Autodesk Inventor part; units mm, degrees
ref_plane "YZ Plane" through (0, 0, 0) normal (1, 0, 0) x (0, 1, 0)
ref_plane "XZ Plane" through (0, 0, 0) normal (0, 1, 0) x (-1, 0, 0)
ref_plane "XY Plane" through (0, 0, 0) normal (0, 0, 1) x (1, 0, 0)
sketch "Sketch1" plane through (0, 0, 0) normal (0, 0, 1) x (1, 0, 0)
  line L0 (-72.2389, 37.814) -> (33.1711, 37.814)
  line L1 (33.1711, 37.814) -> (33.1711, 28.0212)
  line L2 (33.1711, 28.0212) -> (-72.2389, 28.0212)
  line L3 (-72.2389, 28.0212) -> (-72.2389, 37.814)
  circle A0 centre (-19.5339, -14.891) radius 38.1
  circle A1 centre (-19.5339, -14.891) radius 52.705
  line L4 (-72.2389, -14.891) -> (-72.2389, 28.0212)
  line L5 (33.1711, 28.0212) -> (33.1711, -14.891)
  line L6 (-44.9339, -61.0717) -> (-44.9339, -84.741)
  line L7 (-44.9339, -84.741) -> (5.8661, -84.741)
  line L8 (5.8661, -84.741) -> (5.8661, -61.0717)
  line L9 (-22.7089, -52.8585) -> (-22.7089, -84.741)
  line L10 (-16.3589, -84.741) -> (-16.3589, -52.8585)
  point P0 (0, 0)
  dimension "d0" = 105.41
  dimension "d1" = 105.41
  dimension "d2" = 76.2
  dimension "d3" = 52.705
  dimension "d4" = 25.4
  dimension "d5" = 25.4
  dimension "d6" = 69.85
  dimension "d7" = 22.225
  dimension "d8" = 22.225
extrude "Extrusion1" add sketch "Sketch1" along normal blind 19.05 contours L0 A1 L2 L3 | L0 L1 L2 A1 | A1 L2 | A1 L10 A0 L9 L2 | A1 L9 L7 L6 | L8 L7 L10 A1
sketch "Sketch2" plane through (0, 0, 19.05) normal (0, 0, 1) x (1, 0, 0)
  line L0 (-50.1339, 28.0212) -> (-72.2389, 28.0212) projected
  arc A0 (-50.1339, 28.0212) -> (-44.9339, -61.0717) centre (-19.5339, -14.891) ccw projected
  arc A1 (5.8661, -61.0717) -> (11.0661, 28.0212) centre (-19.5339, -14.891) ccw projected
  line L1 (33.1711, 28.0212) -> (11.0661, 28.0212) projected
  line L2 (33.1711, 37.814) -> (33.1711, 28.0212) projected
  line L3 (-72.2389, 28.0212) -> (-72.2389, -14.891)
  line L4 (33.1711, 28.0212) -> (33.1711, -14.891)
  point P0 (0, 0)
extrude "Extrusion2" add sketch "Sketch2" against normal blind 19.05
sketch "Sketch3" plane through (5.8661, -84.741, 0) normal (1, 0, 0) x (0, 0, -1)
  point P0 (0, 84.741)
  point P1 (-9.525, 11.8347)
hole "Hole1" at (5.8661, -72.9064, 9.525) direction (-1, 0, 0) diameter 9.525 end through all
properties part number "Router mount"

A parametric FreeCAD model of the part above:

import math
import FreeCAD as App
import Part
import Sketcher
from FreeCAD import Vector
Q = App.Units.Quantity

doc = App.newDocument("Part")
params = doc.addObject("Spreadsheet::Sheet", "Params")
for row, (alias, value) in enumerate([
    ("sketch1_radius", "1.5 in"),
    ("sketch1_radius2", "2.075 in"),
    ("sketch1_width", "1 in"),
    ("sketch1_width2", "4.15 in"),
    ("sketch1_width3", "0.875 in"),
    ("pad1_length", "0.75 in"),
    ("sketch2_radius", "2.075 in"),
    ("pad2_length", "0.75 in"),
    ("sketch3_diameter", "0.375 in"),
    ("hole_diameter", "0.375 in"),
], start=1):
    params.set(f"A{row}", alias)
    params.set(f"B{row}", "=" + value)
    params.setAlias(f"B{row}", alias)

body = doc.addObject("PartDesign::Body", "Body")

sketch1 = body.newObject("Sketcher::SketchObject", "Sketch")
sketch1.AttachmentSupport = (doc.getObject("XY_Plane"), [""])
sketch1.MapMode = "FlatFace"
sketch1.addGeometry([
    Part.LineSegment(Vector(-72.2389, 37.814, 0), Vector(-72.2389, 28.0212, 0)),
    Part.LineSegment(Vector(-72.2389, 28.0212, 0), Vector(-50.133902, 28.0212, 0)),
    Part.ArcOfCircle(Part.Circle(Vector(-19.5339, -14.891, 0), Vector(0, 0, 1), 52.705), math.radians(125.492059), math.radians(241.18862)),
    Part.LineSegment(Vector(-44.9339, -61.0717, 0), Vector(-44.9339, -84.741, 0)),
    Part.LineSegment(Vector(-44.9339, -84.741, 0), Vector(-22.7089, -84.741, 0)),
    Part.LineSegment(Vector(-22.7089, -84.741, 0), Vector(-22.7089, -52.8585, 0)),
    Part.ArcOfCircle(Part.Circle(Vector(-19.5339, -14.891, 0), Vector(0, 0, 1), 38.1), math.radians(-85.219811), math.radians(265.219811)),
    Part.LineSegment(Vector(-16.3589, -52.8585, 0), Vector(-16.3589, -84.741, 0)),
    Part.LineSegment(Vector(-16.3589, -84.741, 0), Vector(5.8661, -84.741, 0)),
    Part.LineSegment(Vector(5.8661, -84.741, 0), Vector(5.8661, -61.0717, 0)),
    Part.ArcOfCircle(Part.Circle(Vector(-19.5339, -14.891, 0), Vector(0, 0, 1), 52.705), math.radians(-61.18862), math.radians(54.507941)),
    Part.LineSegment(Vector(11.066102, 28.0212, 0), Vector(33.1711, 28.0212, 0)),
    Part.LineSegment(Vector(33.1711, 28.0212, 0), Vector(33.1711, 37.814, 0)),
    Part.LineSegment(Vector(33.1711, 37.814, 0), Vector(-72.2389, 37.814, 0)),
], False)
sketch1.addConstraint([
    Sketcher.Constraint("Coincident", 0, 2, 1, 1),
    Sketcher.Constraint("Coincident", 1, 2, 2, 1),
    Sketcher.Constraint("Coincident", 2, 2, 3, 1),
    Sketcher.Constraint("Coincident", 3, 2, 4, 1),
    Sketcher.Constraint("Coincident", 4, 2, 5, 1),
    Sketcher.Constraint("Coincident", 5, 2, 6, 2),
    Sketcher.Constraint("Coincident", 6, 1, 7, 1),
    Sketcher.Constraint("Coincident", 7, 2, 8, 1),
    Sketcher.Constraint("Coincident", 8, 2, 9, 1),
    Sketcher.Constraint("Coincident", 9, 2, 10, 1),
    Sketcher.Constraint("Coincident", 10, 2, 11, 1),
    Sketcher.Constraint("Coincident", 11, 2, 12, 1),
    Sketcher.Constraint("Coincident", 12, 2, 13, 1),
    Sketcher.Constraint("Coincident", 13, 2, 0, 1),
    Sketcher.Constraint("Vertical", 0),
    Sketcher.Constraint("Horizontal", 1),
    Sketcher.Constraint("Vertical", 3),
    Sketcher.Constraint("Horizontal", 4),
    Sketcher.Constraint("Vertical", 5),
    Sketcher.Constraint("Vertical", 7),
    Sketcher.Constraint("Horizontal", 8),
    Sketcher.Constraint("Vertical", 9),
    Sketcher.Constraint("Horizontal", 11),
    Sketcher.Constraint("Vertical", 12),
    Sketcher.Constraint("Horizontal", 13),
    Sketcher.Constraint("Coincident", 6, 3, 2, 3),
    Sketcher.Constraint("Coincident", 10, 3, 2, 3),
    Sketcher.Constraint("Equal", 2, 10),
    Sketcher.Constraint("Horizontal", 5, 2, 6, 1),
    Sketcher.Constraint("Horizontal", 4, 2, 7, 2),
    Sketcher.Constraint("Horizontal", 2, 2, 9, 2),
    Sketcher.Constraint("Horizontal", 1, 2, 10, 2),
    Sketcher.Constraint("Equal", 1, 11),
    Sketcher.Constraint("Radius", 6, Q("1.5 in")),
    Sketcher.Constraint("Radius", 2, Q("2.075 in")),
    Sketcher.Constraint("DistanceX", 2, 2, 2, 3, Q("1 in")),
    Sketcher.Constraint("DistanceX", 13, 2, 13, 1, Q("4.15 in")),
    Sketcher.Constraint("DistanceX", 4, 1, 4, 2, Q("0.875 in")),
    Sketcher.Constraint("DistanceY", 3, 2, 2, 3, Q("2.75 in")),
    Sketcher.Constraint("DistanceY", 2, 3, 12, 2, Q("2.075 in")),
    Sketcher.Constraint("DistanceX", 1, 1, 1, 2, 22.105),
    Sketcher.Constraint("DistanceY", -1, 1, 0, 2, Q("1.1032 in")),
    Sketcher.Constraint("DistanceX", 2, 3, -1, 1, 19.534),
])
sketch1.setExpression("Constraints[33]", "Params.sketch1_radius")
sketch1.setExpression("Constraints[34]", "Params.sketch1_radius2")
sketch1.setExpression("Constraints[35]", "Params.sketch1_width")
sketch1.setExpression("Constraints[36]", "Params.sketch1_width2")
sketch1.setExpression("Constraints[37]", "Params.sketch1_width3")
pad1 = body.newObject("PartDesign::Pad", "Pad")
pad1.Profile = sketch1
pad1.setExpression("Length", "Params.pad1_length")

sketch2 = body.newObject("Sketcher::SketchObject", "Sketch001")
sketch2.AttachmentSupport = (doc.getObject("XY_Plane"), [""])
sketch2.MapMode = "FlatFace"
sketch2.AttachmentOffset = App.Placement(Vector(0, 0, 0.75 * 25.4), App.Rotation())
sketch2.addGeometry([
    Part.ArcOfCircle(Part.Circle(Vector(-19.5339, -14.891, 0), Vector(0, 0, 1), 52.705), math.radians(125.492057), math.radians(180)),
    Part.LineSegment(Vector(-50.1339, 28.0212, 0), Vector(-72.2389, 28.0212, 0)),
    Part.LineSegment(Vector(-72.2389, 28.0212, 0), Vector(-72.2389, -14.891, 0)),
    Part.ArcOfCircle(Part.Circle(Vector(-19.5339, -14.891, 0), Vector(0, 0, 1), 52.704999), math.radians(0), math.radians(54.507943)),
    Part.LineSegment(Vector(33.1711, -14.891, 0), Vector(33.1711, 28.0212, 0)),
    Part.LineSegment(Vector(33.1711, 28.0212, 0), Vector(11.0661, 28.0212, 0)),
], False)
sketch2.addConstraint([
    Sketcher.Constraint("Coincident", 0, 1, 1, 1),
    Sketcher.Constraint("Coincident", 1, 2, 2, 1),
    Sketcher.Constraint("Tangent", 2, 2, 0, 2),
    Sketcher.Constraint("Tangent", 3, 1, 4, 1),
    Sketcher.Constraint("Coincident", 4, 2, 5, 1),
    Sketcher.Constraint("Coincident", 5, 2, 3, 2),
    Sketcher.Constraint("Horizontal", 1),
    Sketcher.Constraint("Vertical", 2),
    Sketcher.Constraint("Vertical", 4),
    Sketcher.Constraint("Horizontal", 5),
    Sketcher.Constraint("Coincident", 3, 3, 0, 3),
    Sketcher.Constraint("Equal", 0, 3),
    Sketcher.Constraint("Horizontal", 1, 2, 4, 2),
    Sketcher.Constraint("Radius", 0, Q("2.075 in")),
    Sketcher.Constraint("DistanceX", 1, 2, 1, 1, 22.105),
    Sketcher.Constraint("DistanceY", -1, 1, 0, 1, Q("1.1032 in")),
    Sketcher.Constraint("DistanceX", 0, 3, -1, 1, 19.534),
])
sketch2.setExpression("Constraints[13]", "Params.sketch2_radius")
pad2 = body.newObject("PartDesign::Pad", "Pad001")
pad2.Profile = sketch2
pad2.setExpression("Length", "Params.pad2_length")
pad2.Reversed = True

sketch3 = body.newObject("Sketcher::SketchObject", "Sketch002")
sketch3.AttachmentSupport = (doc.getObject("YZ_Plane"), [""])
sketch3.MapMode = "FlatFace"
sketch3.AttachmentOffset = App.Placement(Vector(0, 0, 5.8661), App.Rotation())
sketch3.addGeometry(Part.Circle(Vector(-72.9064, 9.525, 0), Vector(0, 0, 1), 4.7625), False)
sketch3.addConstraint([
    Sketcher.Constraint("Diameter", 0, Q("0.375 in")),
    Sketcher.Constraint("DistanceY", -1, 1, 0, 3, Q("0.375 in")),
    Sketcher.Constraint("DistanceX", 0, 3, -1, 1, 72.9064),
])
sketch3.setExpression("Constraints[0]", "Params.sketch3_diameter")
doc.recompute()
hole = body.newObject("PartDesign::Hole", "Hole")
hole.Profile = sketch3
hole.ThreadType = "None"
hole.setExpression("Diameter", "Params.hole_diameter")
hole.DepthType = "ThroughAll"

doc.recompute()
